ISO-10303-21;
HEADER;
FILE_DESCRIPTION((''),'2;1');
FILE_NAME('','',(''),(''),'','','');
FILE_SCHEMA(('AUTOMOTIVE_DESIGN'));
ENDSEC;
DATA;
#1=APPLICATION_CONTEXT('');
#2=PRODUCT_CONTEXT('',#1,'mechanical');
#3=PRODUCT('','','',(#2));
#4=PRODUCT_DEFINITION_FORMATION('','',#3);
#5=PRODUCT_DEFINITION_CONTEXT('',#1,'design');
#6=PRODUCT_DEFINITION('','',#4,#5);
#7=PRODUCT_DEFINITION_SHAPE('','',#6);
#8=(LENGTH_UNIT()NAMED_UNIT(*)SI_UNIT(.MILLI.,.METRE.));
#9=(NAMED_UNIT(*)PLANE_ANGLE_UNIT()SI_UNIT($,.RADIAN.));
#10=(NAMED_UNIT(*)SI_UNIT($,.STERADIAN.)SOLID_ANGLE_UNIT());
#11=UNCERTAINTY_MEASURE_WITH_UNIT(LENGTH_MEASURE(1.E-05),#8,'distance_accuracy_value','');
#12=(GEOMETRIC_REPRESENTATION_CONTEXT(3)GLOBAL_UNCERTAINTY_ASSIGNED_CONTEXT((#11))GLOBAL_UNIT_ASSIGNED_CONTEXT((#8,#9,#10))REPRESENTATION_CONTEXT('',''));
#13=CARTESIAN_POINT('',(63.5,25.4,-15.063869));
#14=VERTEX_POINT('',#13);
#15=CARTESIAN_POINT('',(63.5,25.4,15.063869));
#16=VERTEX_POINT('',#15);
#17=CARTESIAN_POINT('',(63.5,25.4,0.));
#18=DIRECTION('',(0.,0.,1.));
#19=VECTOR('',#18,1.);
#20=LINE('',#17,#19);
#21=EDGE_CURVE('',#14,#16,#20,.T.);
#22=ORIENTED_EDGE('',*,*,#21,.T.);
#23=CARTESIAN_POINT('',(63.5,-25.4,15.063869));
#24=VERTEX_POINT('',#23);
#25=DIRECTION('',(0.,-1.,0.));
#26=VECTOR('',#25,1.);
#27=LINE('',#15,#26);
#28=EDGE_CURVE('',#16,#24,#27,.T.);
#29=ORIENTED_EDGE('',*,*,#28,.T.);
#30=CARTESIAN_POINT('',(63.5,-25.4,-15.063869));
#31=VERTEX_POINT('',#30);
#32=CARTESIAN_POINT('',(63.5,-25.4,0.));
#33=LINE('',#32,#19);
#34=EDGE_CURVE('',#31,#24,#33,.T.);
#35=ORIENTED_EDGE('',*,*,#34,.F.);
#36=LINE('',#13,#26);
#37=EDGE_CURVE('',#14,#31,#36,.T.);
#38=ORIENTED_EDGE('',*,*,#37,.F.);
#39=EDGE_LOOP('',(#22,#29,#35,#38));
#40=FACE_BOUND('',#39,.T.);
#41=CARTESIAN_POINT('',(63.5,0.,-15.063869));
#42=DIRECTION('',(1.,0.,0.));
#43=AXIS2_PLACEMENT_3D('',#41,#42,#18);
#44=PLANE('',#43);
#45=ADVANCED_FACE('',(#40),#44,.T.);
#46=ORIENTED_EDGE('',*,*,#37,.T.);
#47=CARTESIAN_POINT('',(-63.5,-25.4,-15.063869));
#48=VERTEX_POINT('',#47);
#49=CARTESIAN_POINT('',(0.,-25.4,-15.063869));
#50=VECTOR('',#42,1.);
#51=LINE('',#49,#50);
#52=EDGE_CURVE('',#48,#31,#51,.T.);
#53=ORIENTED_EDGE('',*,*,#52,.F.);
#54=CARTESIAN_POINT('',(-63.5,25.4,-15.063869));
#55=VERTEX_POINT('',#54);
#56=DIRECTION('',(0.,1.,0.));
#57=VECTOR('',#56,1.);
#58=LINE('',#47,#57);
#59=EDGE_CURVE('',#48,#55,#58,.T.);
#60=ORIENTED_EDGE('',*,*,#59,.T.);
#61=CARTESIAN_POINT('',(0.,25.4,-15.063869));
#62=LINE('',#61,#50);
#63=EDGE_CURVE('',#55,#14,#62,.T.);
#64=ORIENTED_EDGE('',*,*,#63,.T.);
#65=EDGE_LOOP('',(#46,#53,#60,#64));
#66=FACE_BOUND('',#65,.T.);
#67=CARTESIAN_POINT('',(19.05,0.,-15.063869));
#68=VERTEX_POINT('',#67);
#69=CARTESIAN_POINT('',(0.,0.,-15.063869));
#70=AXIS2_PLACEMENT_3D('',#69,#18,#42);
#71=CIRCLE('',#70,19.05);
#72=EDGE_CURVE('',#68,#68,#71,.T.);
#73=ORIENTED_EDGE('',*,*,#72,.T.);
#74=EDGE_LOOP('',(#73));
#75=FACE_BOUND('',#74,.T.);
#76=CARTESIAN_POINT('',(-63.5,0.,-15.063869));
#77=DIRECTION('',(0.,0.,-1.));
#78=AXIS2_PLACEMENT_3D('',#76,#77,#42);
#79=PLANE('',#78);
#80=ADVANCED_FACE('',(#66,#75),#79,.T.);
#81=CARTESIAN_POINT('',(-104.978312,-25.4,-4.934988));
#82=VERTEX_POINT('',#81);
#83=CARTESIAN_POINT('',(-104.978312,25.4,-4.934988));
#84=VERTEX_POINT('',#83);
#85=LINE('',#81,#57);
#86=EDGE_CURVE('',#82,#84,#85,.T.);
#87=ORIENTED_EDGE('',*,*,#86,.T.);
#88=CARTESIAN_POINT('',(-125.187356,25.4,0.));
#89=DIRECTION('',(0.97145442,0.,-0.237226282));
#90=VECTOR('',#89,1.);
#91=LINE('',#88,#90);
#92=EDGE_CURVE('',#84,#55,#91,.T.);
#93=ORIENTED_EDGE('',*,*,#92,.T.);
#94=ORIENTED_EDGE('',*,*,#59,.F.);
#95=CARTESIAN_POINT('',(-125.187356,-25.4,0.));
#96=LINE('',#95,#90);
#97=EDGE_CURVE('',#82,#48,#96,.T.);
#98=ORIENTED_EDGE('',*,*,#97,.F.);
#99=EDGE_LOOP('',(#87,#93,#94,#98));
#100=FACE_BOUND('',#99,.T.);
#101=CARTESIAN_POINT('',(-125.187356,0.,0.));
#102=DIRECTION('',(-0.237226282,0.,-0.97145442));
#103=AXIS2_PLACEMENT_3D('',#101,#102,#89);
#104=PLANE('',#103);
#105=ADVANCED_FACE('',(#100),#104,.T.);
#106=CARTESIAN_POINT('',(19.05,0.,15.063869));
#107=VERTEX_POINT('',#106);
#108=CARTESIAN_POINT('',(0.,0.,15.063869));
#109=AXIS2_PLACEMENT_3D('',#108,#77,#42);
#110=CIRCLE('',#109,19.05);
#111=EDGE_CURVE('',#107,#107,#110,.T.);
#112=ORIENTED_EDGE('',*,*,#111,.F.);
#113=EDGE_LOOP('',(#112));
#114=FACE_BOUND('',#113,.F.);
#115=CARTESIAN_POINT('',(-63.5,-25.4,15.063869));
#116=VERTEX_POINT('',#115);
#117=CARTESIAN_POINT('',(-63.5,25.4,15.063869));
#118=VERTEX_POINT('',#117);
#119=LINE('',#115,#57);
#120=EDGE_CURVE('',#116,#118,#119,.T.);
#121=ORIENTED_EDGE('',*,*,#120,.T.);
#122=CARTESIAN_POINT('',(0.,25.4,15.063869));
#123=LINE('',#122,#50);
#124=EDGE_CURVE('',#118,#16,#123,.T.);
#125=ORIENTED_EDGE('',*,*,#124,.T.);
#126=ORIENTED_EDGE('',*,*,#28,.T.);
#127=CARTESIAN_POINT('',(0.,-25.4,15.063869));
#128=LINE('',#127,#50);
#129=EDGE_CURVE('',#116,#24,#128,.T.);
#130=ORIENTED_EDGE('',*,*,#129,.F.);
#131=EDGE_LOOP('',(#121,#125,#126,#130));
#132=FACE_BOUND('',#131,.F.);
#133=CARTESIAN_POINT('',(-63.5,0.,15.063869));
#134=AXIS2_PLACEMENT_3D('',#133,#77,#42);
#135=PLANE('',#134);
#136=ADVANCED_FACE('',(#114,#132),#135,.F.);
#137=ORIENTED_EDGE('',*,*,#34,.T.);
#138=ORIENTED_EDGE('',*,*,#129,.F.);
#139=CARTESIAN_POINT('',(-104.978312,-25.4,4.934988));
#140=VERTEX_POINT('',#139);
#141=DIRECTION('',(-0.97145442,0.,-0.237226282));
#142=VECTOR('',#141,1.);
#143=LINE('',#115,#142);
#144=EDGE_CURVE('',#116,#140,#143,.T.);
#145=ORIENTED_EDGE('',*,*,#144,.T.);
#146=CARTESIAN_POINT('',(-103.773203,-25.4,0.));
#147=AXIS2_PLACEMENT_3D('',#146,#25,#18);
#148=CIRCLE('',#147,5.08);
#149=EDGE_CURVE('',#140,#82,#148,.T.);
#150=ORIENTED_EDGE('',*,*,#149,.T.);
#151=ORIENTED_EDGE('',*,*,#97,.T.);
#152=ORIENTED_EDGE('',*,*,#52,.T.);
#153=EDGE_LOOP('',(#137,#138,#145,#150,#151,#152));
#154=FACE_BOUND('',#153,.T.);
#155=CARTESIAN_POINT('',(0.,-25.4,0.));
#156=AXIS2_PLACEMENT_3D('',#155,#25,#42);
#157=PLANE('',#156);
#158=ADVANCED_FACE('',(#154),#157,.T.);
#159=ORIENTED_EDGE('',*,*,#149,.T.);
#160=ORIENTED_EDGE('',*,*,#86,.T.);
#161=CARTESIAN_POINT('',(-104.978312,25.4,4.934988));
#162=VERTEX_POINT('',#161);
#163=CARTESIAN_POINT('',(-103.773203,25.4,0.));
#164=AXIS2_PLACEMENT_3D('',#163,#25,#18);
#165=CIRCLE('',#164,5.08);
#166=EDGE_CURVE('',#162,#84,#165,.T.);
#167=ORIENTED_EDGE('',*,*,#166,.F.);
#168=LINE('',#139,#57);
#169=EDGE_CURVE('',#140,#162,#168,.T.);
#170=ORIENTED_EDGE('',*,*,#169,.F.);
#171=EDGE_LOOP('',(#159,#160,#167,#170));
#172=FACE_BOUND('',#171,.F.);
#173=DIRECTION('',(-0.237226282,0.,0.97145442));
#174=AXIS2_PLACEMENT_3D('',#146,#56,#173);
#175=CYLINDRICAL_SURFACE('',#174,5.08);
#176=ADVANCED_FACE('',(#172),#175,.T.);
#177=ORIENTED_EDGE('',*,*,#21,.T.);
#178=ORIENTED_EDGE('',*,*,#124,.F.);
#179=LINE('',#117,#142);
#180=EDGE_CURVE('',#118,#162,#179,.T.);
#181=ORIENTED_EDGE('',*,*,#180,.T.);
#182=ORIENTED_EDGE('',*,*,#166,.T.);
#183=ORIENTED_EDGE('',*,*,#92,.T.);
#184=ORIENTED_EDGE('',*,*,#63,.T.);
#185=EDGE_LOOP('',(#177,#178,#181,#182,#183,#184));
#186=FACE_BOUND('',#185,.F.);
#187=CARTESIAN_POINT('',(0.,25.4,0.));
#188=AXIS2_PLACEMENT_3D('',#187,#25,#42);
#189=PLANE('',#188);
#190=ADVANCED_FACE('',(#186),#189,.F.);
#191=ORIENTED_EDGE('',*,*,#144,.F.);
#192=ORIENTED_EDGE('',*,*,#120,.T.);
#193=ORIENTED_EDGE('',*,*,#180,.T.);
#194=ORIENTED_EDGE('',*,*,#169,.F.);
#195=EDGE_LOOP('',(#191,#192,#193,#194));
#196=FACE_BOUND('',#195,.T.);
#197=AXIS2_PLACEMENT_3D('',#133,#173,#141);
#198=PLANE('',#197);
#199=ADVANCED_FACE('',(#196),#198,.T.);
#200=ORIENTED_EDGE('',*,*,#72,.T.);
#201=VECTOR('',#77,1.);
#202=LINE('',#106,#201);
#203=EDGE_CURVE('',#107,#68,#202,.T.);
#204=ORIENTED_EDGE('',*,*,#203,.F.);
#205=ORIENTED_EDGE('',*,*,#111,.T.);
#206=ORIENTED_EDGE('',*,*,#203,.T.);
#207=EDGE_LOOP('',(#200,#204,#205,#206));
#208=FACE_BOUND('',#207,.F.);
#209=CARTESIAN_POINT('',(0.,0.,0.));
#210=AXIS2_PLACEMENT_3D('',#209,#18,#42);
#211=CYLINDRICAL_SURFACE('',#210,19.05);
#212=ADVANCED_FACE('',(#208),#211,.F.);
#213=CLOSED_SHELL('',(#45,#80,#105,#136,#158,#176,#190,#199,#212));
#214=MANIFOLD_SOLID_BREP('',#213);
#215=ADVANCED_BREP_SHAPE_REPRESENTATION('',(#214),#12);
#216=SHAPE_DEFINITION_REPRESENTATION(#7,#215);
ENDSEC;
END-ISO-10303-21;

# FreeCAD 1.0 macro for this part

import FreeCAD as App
import Part
import Sketcher

V = App.Vector
Q = App.Units.Quantity


def edges_at(feature, points):
    """Names of the edges that pass closest to the given points."""
    edges = feature.Shape.Edges
    near = lambda p: min(range(len(edges)), key=lambda i: edges[i].distToShape(Part.Vertex(*p))[0])
    return sorted({f"Edge{near(p) + 1}" for p in points})

doc = App.newDocument("Part")
params = doc.addObject("Spreadsheet::Sheet", "Params")
for row, (alias, value) in enumerate([
    ("sketch1_width", "5 in"),
    ("sketch1_length", "2.5 in"),
    ("pad1_length", "1 in"),
    ("pad1_length2", "1 in"),
    ("sketch2_diameter", "1.5 in"),
    ("fillet_radius", "0.2 in"),
], start=1):
    params.set(f"A{row}", alias)
    params.set(f"B{row}", "=" + value)
    params.setAlias(f"B{row}", alias)

body = doc.addObject("PartDesign::Body", "Body")

sketch1 = body.newObject("Sketcher::SketchObject", "Sketch")
sketch1.AttachmentSupport = (doc.getObject("XZ_Plane"), [""])
sketch1.MapMode = "FlatFace"
sketch1.addGeometry([
    Part.LineSegment(V(-64, -15, 0), V(64, -15, 0)),
    Part.LineSegment(V(64, -15, 0), V(64, 15, 0)),
    Part.LineSegment(V(64, 15, 0), V(-64, 15, 0)),
    Part.LineSegment(V(-64, 15, 0), V(-125, 0, 0)),
    Part.LineSegment(V(-125, 0, 0), V(-64, -15, 0)),
], False)
sketch1.addConstraint([
    Sketcher.Constraint("Coincident", 0, 2, 1, 1),
    Sketcher.Constraint("Coincident", 1, 2, 2, 1),
    Sketcher.Constraint("Coincident", 2, 2, 3, 1),
    Sketcher.Constraint("Coincident", 3, 2, 4, 1),
    Sketcher.Constraint("Coincident", 4, 2, 0, 1),
    Sketcher.Constraint("Horizontal", 0),
    Sketcher.Constraint("Vertical", 1),
    Sketcher.Constraint("Horizontal", 2),
    Sketcher.Constraint("Symmetric", 0, 2, 2, 2, -1, 1),
    Sketcher.Constraint("PointOnObject", 3, 2, -1),
    Sketcher.Constraint("Vertical", 2, 2, 4, 2),
    Sketcher.Constraint("DistanceX", 0, 1, 0, 2, Q("5 in")),
    Sketcher.Constraint("Distance", 3, Q("2.5 in")),
    Sketcher.Constraint("DistanceY", 1, 1, 1, 2, 30.127738),
])
sketch1.setExpression("Constraints[11]", "Params.sketch1_width")
sketch1.setExpression("Constraints[12]", "Params.sketch1_length")
pad1 = body.newObject("PartDesign::Pad", "Pad")
pad1.Profile = sketch1
pad1.Type = "TwoLengths"
pad1.setExpression("Length", "Params.pad1_length")
pad1.setExpression("Length2", "Params.pad1_length2")

sketch2 = body.newObject("Sketcher::SketchObject", "Sketch001")
sketch2.AttachmentSupport = (doc.getObject("XY_Plane"), [""])
sketch2.MapMode = "FlatFace"
sketch2.addGeometry(Part.Circle(V(0, 0, 0), V(0, 0, 1), 19), False)
sketch2.addConstraint([
    Sketcher.Constraint("Coincident", 0, 3, -1, 1),
    Sketcher.Constraint("Diameter", 0, Q("1.5 in")),
])
sketch2.setExpression("Constraints[1]", "Params.sketch2_diameter")
pocket1 = body.newObject("PartDesign::Pocket", "Pocket")
pocket1.Profile = sketch2
pocket1.Type = "ThroughAll"
pocket1.Midplane = True
doc.recompute()

fillet = body.newObject("PartDesign::Fillet", "Fillet")
fillet.Base = (pocket1, edges_at(pocket1, [(-125.187, 0, 0)]))
fillet.setExpression("Radius", "Params.fillet_radius")

doc.recompute()
